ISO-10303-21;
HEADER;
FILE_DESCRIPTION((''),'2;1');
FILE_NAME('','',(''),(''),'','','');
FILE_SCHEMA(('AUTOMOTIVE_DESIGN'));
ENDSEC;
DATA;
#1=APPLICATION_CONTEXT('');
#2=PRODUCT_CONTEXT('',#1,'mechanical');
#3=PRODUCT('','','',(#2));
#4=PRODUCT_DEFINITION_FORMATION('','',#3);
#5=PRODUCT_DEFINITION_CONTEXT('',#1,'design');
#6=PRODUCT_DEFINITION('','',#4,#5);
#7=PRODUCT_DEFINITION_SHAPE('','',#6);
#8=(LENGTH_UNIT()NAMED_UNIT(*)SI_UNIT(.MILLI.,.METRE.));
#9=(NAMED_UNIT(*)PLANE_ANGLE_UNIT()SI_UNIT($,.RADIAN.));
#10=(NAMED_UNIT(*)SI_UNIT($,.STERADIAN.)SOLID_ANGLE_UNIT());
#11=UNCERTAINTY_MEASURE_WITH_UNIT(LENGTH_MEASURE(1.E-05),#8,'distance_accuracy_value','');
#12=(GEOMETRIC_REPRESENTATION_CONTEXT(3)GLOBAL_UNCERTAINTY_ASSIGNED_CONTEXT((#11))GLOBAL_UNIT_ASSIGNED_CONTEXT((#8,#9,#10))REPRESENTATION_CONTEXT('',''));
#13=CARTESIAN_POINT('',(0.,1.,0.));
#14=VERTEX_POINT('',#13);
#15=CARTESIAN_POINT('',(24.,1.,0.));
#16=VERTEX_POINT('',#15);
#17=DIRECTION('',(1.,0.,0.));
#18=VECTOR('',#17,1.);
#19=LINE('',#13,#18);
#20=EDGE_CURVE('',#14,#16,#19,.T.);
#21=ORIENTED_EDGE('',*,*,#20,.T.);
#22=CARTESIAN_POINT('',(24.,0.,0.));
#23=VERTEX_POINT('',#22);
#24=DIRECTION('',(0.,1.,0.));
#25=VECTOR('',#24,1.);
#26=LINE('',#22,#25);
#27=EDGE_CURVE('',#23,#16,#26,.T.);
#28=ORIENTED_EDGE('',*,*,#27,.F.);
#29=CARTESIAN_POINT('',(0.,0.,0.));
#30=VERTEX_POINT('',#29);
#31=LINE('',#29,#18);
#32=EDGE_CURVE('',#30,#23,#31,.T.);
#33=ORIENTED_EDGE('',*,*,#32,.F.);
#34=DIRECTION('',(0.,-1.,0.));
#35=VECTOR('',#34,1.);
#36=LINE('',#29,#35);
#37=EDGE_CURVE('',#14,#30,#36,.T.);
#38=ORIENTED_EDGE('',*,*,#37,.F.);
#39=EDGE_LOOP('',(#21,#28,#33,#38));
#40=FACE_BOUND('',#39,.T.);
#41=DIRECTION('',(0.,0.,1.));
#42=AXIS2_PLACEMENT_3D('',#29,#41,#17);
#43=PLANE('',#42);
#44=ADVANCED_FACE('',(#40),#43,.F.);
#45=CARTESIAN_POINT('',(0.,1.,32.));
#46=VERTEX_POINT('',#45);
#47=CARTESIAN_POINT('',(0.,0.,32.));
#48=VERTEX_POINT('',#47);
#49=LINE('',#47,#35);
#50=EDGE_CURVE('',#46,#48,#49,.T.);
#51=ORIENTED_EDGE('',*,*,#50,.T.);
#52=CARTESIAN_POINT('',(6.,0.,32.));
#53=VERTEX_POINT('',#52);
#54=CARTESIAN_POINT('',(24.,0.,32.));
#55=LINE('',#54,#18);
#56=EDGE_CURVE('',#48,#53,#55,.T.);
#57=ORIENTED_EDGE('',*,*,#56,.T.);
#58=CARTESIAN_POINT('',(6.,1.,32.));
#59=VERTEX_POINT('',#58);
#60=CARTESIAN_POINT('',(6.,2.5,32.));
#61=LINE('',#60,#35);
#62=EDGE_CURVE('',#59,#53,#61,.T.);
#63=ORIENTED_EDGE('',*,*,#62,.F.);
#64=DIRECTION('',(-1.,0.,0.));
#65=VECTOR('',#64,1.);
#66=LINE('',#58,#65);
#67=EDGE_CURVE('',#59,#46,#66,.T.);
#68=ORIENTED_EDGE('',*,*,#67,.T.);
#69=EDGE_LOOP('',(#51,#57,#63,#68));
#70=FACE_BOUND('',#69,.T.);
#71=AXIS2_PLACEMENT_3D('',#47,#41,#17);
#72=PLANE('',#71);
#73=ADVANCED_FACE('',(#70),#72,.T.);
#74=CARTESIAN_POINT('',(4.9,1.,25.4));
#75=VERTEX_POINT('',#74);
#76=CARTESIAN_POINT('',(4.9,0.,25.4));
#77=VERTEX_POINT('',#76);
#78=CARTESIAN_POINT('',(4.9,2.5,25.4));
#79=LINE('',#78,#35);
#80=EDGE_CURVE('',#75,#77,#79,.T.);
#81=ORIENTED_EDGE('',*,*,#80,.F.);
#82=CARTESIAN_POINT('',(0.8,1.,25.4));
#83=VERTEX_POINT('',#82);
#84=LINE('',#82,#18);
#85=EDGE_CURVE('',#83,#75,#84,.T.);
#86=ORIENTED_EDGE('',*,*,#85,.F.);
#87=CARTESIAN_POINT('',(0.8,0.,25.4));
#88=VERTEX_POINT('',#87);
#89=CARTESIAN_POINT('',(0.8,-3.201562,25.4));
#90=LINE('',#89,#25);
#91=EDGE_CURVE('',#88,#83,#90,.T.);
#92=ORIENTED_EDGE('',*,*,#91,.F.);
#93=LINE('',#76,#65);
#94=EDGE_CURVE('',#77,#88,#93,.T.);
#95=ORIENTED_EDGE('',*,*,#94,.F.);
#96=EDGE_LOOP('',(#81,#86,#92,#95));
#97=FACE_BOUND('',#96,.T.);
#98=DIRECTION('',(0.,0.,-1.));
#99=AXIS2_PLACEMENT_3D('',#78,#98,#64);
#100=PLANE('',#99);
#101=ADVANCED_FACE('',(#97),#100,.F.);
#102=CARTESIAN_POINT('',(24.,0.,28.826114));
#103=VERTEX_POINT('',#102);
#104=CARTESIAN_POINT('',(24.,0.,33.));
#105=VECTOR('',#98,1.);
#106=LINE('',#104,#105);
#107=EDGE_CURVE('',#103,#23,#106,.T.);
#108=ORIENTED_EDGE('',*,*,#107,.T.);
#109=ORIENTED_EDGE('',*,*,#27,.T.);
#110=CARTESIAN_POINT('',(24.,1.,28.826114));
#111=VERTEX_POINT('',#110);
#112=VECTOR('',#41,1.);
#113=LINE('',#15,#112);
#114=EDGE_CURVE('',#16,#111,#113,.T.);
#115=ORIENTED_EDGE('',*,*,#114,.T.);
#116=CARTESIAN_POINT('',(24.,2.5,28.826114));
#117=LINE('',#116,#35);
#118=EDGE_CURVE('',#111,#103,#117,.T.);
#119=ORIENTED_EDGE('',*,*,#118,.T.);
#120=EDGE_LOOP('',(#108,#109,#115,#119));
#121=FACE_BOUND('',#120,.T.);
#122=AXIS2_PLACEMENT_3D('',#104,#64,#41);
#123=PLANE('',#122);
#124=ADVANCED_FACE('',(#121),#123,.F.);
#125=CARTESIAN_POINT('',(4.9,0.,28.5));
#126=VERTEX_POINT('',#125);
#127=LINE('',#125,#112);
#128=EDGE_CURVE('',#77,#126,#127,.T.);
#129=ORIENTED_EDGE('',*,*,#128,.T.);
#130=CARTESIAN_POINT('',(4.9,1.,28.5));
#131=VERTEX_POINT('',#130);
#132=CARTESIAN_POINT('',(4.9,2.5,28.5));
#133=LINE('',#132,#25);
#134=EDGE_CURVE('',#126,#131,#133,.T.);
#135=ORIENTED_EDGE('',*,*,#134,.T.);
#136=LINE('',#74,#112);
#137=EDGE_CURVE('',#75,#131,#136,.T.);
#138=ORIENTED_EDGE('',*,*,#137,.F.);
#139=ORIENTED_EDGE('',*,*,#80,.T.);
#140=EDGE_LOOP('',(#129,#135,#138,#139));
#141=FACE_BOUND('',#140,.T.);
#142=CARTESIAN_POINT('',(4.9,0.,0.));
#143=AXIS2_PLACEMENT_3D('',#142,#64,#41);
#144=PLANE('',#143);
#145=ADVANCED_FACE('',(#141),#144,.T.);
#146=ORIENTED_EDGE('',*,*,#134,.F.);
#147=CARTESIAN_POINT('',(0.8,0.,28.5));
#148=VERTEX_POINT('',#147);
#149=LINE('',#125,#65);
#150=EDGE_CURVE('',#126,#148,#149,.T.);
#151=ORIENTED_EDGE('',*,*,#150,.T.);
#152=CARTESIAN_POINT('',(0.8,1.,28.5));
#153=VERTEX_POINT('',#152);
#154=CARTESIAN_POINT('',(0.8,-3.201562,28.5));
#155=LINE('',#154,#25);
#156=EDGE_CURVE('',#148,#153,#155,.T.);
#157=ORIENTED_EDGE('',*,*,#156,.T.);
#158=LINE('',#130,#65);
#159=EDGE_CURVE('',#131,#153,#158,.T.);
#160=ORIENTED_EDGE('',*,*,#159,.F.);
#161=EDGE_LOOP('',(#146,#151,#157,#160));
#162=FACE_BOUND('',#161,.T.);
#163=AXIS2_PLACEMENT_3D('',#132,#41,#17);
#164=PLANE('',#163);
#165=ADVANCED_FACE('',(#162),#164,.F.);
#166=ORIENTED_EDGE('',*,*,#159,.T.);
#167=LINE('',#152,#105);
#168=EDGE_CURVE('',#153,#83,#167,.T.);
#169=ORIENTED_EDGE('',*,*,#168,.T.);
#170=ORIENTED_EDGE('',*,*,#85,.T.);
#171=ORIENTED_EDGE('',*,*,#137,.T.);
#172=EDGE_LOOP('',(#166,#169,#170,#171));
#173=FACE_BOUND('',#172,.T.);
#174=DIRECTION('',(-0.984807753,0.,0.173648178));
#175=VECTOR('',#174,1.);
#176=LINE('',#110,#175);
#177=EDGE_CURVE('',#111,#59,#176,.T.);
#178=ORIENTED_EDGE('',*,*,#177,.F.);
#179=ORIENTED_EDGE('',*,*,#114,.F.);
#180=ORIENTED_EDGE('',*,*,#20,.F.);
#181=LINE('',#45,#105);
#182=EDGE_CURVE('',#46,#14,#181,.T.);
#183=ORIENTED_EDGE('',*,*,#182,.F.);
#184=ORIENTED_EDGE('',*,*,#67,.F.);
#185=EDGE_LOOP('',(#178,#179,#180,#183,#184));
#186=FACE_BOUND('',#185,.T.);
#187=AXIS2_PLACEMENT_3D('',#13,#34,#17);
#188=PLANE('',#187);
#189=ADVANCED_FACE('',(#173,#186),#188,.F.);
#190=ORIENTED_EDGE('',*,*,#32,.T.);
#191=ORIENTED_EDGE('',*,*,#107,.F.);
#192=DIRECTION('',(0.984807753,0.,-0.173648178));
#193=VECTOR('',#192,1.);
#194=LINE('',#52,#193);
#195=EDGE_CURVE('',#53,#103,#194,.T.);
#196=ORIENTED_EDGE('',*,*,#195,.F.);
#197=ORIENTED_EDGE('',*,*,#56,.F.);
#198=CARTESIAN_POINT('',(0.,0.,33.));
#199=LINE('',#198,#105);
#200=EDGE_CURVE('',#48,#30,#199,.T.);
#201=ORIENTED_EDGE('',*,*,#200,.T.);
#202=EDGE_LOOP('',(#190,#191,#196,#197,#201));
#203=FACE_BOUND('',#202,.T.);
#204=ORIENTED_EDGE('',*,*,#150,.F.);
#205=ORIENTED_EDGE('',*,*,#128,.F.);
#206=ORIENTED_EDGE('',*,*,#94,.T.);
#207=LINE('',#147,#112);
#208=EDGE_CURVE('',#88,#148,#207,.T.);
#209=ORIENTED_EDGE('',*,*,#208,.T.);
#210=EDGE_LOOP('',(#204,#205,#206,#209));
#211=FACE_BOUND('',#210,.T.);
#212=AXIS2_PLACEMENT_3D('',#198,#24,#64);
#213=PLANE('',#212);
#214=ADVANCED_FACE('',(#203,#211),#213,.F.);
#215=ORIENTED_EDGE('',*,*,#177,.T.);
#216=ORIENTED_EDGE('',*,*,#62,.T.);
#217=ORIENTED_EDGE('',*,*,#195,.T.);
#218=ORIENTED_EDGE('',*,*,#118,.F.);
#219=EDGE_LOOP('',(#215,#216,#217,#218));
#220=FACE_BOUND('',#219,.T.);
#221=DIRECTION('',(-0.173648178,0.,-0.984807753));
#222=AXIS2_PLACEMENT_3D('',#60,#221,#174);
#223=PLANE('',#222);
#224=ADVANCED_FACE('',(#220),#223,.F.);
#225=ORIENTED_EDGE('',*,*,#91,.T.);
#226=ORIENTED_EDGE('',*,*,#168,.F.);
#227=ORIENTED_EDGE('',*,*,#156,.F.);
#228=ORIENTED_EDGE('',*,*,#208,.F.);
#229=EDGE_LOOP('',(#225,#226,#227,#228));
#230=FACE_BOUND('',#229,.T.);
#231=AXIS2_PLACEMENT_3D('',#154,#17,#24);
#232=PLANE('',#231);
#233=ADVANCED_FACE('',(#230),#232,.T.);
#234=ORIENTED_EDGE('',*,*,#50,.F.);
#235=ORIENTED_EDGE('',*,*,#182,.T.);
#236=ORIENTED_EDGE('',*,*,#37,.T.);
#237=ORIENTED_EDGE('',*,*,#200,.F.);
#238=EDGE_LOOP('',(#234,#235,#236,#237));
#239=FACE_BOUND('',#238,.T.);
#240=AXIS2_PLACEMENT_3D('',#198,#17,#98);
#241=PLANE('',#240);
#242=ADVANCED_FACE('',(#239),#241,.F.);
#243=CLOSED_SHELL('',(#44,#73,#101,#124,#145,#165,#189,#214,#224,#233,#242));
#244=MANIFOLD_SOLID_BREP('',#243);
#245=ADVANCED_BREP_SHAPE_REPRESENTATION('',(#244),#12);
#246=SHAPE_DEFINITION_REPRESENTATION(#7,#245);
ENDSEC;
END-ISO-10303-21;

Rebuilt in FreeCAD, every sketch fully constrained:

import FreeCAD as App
import Part
import Sketcher
Q = App.Units.Quantity


def edges_at(feature, points):
    """Names of the edges that pass closest to the given points."""
    edges = feature.Shape.Edges
    near = lambda p: min(range(len(edges)), key=lambda i: edges[i].distToShape(Part.Vertex(*p))[0])
    return sorted({f"Edge{near(p) + 1}" for p in points})

doc = App.newDocument("Part")
body = doc.addObject("PartDesign::Body", "Body")

sketch1 = doc.addObject("Sketcher::SketchObject", "Sketch")
body.addObject(sketch1)
sketch1.AttachmentSupport = (doc.XY_Plane, [""])
sketch1.MapMode = "FlatFace"
sketch1.addGeometry([
    Part.LineSegment(App.Vector(0, 0, 0), App.Vector(24, 0, 0)),
    Part.LineSegment(App.Vector(24, 0, 0), App.Vector(24, 2.5, 0)),
    Part.LineSegment(App.Vector(24, 2.5, 0), App.Vector(0, 2.5, 0)),
    Part.LineSegment(App.Vector(0, 2.5, 0), App.Vector(0, 0, 0)),
], False)
sketch1.addConstraint([
    Sketcher.Constraint("Coincident", 0, 2, 1, 1),
    Sketcher.Constraint("Coincident", 1, 2, 2, 1),
    Sketcher.Constraint("Coincident", 2, 2, 3, 1),
    Sketcher.Constraint("Coincident", 3, 2, 0, 1),
    Sketcher.Constraint("Horizontal", 0),
    Sketcher.Constraint("Vertical", 1),
    Sketcher.Constraint("Horizontal", 2),
    Sketcher.Constraint("Vertical", 3),
    Sketcher.Constraint("Coincident", 3, 2, -1, 1),
    Sketcher.Constraint("DistanceX", 0, 1, 0, 2, 24.0),
    Sketcher.Constraint("DistanceY", 1, 1, 1, 2, 2.5),
])
pad1 = doc.addObject("PartDesign::Pad", "Pad")
body.addObject(pad1)
pad1.Profile = sketch1
pad1.Length = 33
doc.recompute()

fillet = doc.addObject("PartDesign::Fillet", "Fillet")
body.addObject(fillet)
fillet.Base = (pad1, edges_at(pad1, [(24, 2.5, 16.5)]))
fillet.Radius = 1

sketch2 = doc.addObject("Sketcher::SketchObject", "Sketch001")
body.addObject(sketch2)
sketch2.AttachmentSupport = (doc.XZ_Plane, [""])
sketch2.MapMode = "FlatFace"
sketch2.addGeometry([
    Part.LineSegment(App.Vector(3, 33, 0), App.Vector(24, 31.2, 0)),
    Part.LineSegment(App.Vector(24, 31.2, 0), App.Vector(24, 33, 0)),
    Part.LineSegment(App.Vector(24, 33, 0), App.Vector(3, 33, 0)),
], False)
sketch2.addConstraint([
    Sketcher.Constraint("Coincident", 0, 2, 1, 1),
    Sketcher.Constraint("Coincident", 1, 2, 2, 1),
    Sketcher.Constraint("Coincident", 2, 2, 0, 1),
    Sketcher.Constraint("Vertical", 1),
    Sketcher.Constraint("Horizontal", 2),
    Sketcher.Constraint("DistanceX", 2, 2, 2, 1, 21.0),
    Sketcher.Constraint("Angle", 0, Q("-5 deg")),
    Sketcher.Constraint("DistanceX", -1, 1, 0, 2, 24.0),
    Sketcher.Constraint("DistanceY", -1, 1, 1, 2, 33.0),
])
pocket1 = doc.addObject("PartDesign::Pocket", "Pocket")
body.addObject(pocket1)
pocket1.Profile = sketch2
pocket1.Type = "ThroughAll"

sketch3 = doc.addObject("Sketcher::SketchObject", "Sketch002")
body.addObject(sketch3)
sketch3.AttachmentSupport = (doc.YZ_Plane, [""])
sketch3.MapMode = "FlatFace"
sketch3.addGeometry([
    Part.LineSegment(App.Vector(2.5, 28.5, 0), App.Vector(2.5, 25.4, 0)),
    Part.LineSegment(App.Vector(2.5, 25.4, 0), App.Vector(0, 25.4, 0)),
    Part.LineSegment(App.Vector(0, 25.4, 0), App.Vector(0, 28.5, 0)),
    Part.LineSegment(App.Vector(0, 28.5, 0), App.Vector(2.5, 28.5, 0)),
], False)
sketch3.addConstraint([
    Sketcher.Constraint("Coincident", 0, 2, 1, 1),
    Sketcher.Constraint("Coincident", 1, 2, 2, 1),
    Sketcher.Constraint("Coincident", 2, 2, 3, 1),
    Sketcher.Constraint("Coincident", 3, 2, 0, 1),
    Sketcher.Constraint("Vertical", 0),
    Sketcher.Constraint("Horizontal", 1),
    Sketcher.Constraint("Vertical", 2),
    Sketcher.Constraint("Horizontal", 3),
    Sketcher.Constraint("PointOnObject", 1, 2, -2),
    Sketcher.Constraint("DistanceX", 1, 2, 1, 1, 2.5),
    Sketcher.Constraint("DistanceY", 0, 2, 0, 1, 3.1),
    Sketcher.Constraint("DistanceY", -1, 1, 0, 2, 25.4),
])
pocket2 = doc.addObject("PartDesign::Pocket", "Pocket001")
body.addObject(pocket2)
pocket2.Profile = sketch3
pocket2.Length = 4.9
pocket2.Reversed = True

sketch4 = doc.addObject("Sketcher::SketchObject", "Sketch003")
body.addObject(sketch4)
sketch4.AttachmentSupport = (doc.XY_Plane, [""])
sketch4.MapMode = "FlatFace"
sketch4.AttachmentOffset = App.Placement(App.Vector(0, 0, 33), App.Rotation())
sketch4.addGeometry([
    Part.LineSegment(App.Vector(0, 2.5, 0), App.Vector(0, 0, 0)),
    Part.LineSegment(App.Vector(0, 0, 0), App.Vector(24, 0, 0)),
    Part.LineSegment(App.Vector(24, 0, 0), App.Vector(24, 2.5, 0)),
    Part.LineSegment(App.Vector(24, 2.5, 0), App.Vector(0, 2.5, 0)),
], False)
sketch4.addConstraint([
    Sketcher.Constraint("Coincident", 0, 2, 1, 1),
    Sketcher.Constraint("Coincident", 1, 2, 2, 1),
    Sketcher.Constraint("Coincident", 2, 2, 3, 1),
    Sketcher.Constraint("Coincident", 3, 2, 0, 1),
    Sketcher.Constraint("Vertical", 0),
    Sketcher.Constraint("Horizontal", 1),
    Sketcher.Constraint("Vertical", 2),
    Sketcher.Constraint("Horizontal", 3),
    Sketcher.Constraint("Coincident", 0, 2, -1, 1),
    Sketcher.Constraint("DistanceX", 1, 1, 1, 2, 24.0),
    Sketcher.Constraint("DistanceY", 0, 2, 0, 1, 2.5),
])
pocket3 = doc.addObject("PartDesign::Pocket", "Pocket002")
body.addObject(pocket3)
pocket3.Profile = sketch4
pocket3.Length = 1

sketch5 = doc.addObject("Sketcher::SketchObject", "Sketch004")
body.addObject(sketch5)
sketch5.AttachmentSupport = (doc.XZ_Plane, [""])
sketch5.MapMode = "FlatFace"
sketch5.addGeometry([
    Part.LineSegment(App.Vector(24, 28.8, 0), App.Vector(24, 31.2, 0)),
    Part.LineSegment(App.Vector(24, 31.2, 0), App.Vector(14.4, 32, 0)),
    Part.LineSegment(App.Vector(14.4, 32, 0), App.Vector(6, 32, 0)),
    Part.LineSegment(App.Vector(6, 32, 0), App.Vector(24, 28.8, 0)),
], False)
sketch5.addConstraint([
    Sketcher.Constraint("Coincident", 0, 2, 1, 1),
    Sketcher.Constraint("Coincident", 1, 2, 2, 1),
    Sketcher.Constraint("Coincident", 2, 2, 3, 1),
    Sketcher.Constraint("Coincident", 3, 2, 0, 1),
    Sketcher.Constraint("Vertical", 0),
    Sketcher.Constraint("Horizontal", 2),
    Sketcher.Constraint("Angle", 1, Q("175 deg")),
    Sketcher.Constraint("Angle", 3, Q("-10 deg")),
    Sketcher.Constraint("DistanceX", -1, 1, 0, 2, 24.0),
    Sketcher.Constraint("DistanceY", -1, 1, 1, 2, 32.0),
    Sketcher.Constraint("DistanceX", -1, 1, 2, 2, 6.0),
    Sketcher.Constraint("DistanceX", 2, 2, 2, 1, 8.430052),
])
pocket4 = doc.addObject("PartDesign::Pocket", "Pocket003")
body.addObject(pocket4)
pocket4.Profile = sketch5
pocket4.Type = "ThroughAll"

sketch6 = doc.addObject("Sketcher::SketchObject", "Sketch005")
body.addObject(sketch6)
sketch6.AttachmentSupport = (doc.XZ_Plane, [""])
sketch6.MapMode = "FlatFace"
sketch6.AttachmentOffset = App.Placement(App.Vector(0, 0, -2.5), App.Rotation())
sketch6.addGeometry([
    Part.LineSegment(App.Vector(0.8, 28.5, 0), App.Vector(0.8, 25.4, 0)),
    Part.LineSegment(App.Vector(0.8, 25.4, 0), App.Vector(0, 25.4, 0)),
    Part.LineSegment(App.Vector(0, 25.4, 0), App.Vector(0, 28.5, 0)),
    Part.LineSegment(App.Vector(0, 28.5, 0), App.Vector(0.8, 28.5, 0)),
], False)
sketch6.addConstraint([
    Sketcher.Constraint("Coincident", 0, 2, 1, 1),
    Sketcher.Constraint("Coincident", 1, 2, 2, 1),
    Sketcher.Constraint("Coincident", 2, 2, 3, 1),
    Sketcher.Constraint("Coincident", 3, 2, 0, 1),
    Sketcher.Constraint("Vertical", 0),
    Sketcher.Constraint("Horizontal", 1),
    Sketcher.Constraint("Vertical", 2),
    Sketcher.Constraint("Horizontal", 3),
    Sketcher.Constraint("PointOnObject", 1, 2, -2),
    Sketcher.Constraint("DistanceX", 1, 2, 1, 1, 0.8),
    Sketcher.Constraint("DistanceY", 0, 2, 0, 1, 3.1),
    Sketcher.Constraint("DistanceY", -1, 1, 0, 2, 25.4),
])
pad2 = doc.addObject("PartDesign::Pad", "Pad001")
body.addObject(pad2)
pad2.Profile = sketch6
pad2.Length = 2.5

sketch7 = doc.addObject("Sketcher::SketchObject", "Sketch006")
body.addObject(sketch7)
sketch7.AttachmentSupport = (doc.XZ_Plane, [""])
sketch7.MapMode = "FlatFace"
sketch7.AttachmentOffset = App.Placement(App.Vector(0, 0, -1), App.Rotation())
sketch7.addGeometry([
    Part.LineSegment(App.Vector(6, 32, 0), App.Vector(0, 32, 0)),
    Part.LineSegment(App.Vector(0, 32, 0), App.Vector(0, 0, 0)),
    Part.LineSegment(App.Vector(0, 0, 0), App.Vector(24, 0, 0)),
    Part.LineSegment(App.Vector(24, 0, 0), App.Vector(24, 28.8, 0)),
    Part.LineSegment(App.Vector(24, 28.8, 0), App.Vector(6, 32, 0)),
    Part.LineSegment(App.Vector(0.8, 28.5, 0), App.Vector(4.9, 28.5, 0)),
    Part.LineSegment(App.Vector(4.9, 28.5, 0), App.Vector(4.9, 25.4, 0)),
    Part.LineSegment(App.Vector(4.9, 25.4, 0), App.Vector(0.8, 25.4, 0)),
    Part.LineSegment(App.Vector(0.8, 25.4, 0), App.Vector(0.8, 28.5, 0)),
], False)
sketch7.addConstraint([
    Sketcher.Constraint("Coincident", 0, 2, 1, 1),
    Sketcher.Constraint("Coincident", 1, 2, 2, 1),
    Sketcher.Constraint("Coincident", 2, 2, 3, 1),
    Sketcher.Constraint("Coincident", 3, 2, 4, 1),
    Sketcher.Constraint("Coincident", 4, 2, 0, 1),
    Sketcher.Constraint("Coincident", 5, 2, 6, 1),
    Sketcher.Constraint("Coincident", 6, 2, 7, 1),
    Sketcher.Constraint("Coincident", 7, 2, 8, 1),
    Sketcher.Constraint("Coincident", 8, 2, 5, 1),
    Sketcher.Constraint("Horizontal", 0),
    Sketcher.Constraint("Vertical", 1),
    Sketcher.Constraint("Horizontal", 2),
    Sketcher.Constraint("Vertical", 3),
    Sketcher.Constraint("Horizontal", 5),
    Sketcher.Constraint("Vertical", 6),
    Sketcher.Constraint("Horizontal", 7),
    Sketcher.Constraint("Vertical", 8),
    Sketcher.Constraint("Coincident", 1, 2, -1, 1),
    Sketcher.Constraint("DistanceX", 0, 2, 0, 1, 6.0),
    Sketcher.Constraint("DistanceX", 2, 1, 2, 2, 24.0),
    Sketcher.Constraint("DistanceY", 1, 2, 1, 1, 32.0),
    Sketcher.Constraint("Angle", 4, Q("170 deg")),
    Sketcher.Constraint("DistanceX", 5, 1, 5, 2, 4.1),
    Sketcher.Constraint("DistanceY", 6, 2, 6, 1, 3.1),
    Sketcher.Constraint("DistanceX", -1, 1, 5, 2, 4.9),
    Sketcher.Constraint("DistanceY", -1, 1, 5, 2, 28.5),
])
pocket5 = doc.addObject("PartDesign::Pocket", "Pocket004")
body.addObject(pocket5)
pocket5.Profile = sketch7
pocket5.Type = "ThroughAll"

doc.recompute()
